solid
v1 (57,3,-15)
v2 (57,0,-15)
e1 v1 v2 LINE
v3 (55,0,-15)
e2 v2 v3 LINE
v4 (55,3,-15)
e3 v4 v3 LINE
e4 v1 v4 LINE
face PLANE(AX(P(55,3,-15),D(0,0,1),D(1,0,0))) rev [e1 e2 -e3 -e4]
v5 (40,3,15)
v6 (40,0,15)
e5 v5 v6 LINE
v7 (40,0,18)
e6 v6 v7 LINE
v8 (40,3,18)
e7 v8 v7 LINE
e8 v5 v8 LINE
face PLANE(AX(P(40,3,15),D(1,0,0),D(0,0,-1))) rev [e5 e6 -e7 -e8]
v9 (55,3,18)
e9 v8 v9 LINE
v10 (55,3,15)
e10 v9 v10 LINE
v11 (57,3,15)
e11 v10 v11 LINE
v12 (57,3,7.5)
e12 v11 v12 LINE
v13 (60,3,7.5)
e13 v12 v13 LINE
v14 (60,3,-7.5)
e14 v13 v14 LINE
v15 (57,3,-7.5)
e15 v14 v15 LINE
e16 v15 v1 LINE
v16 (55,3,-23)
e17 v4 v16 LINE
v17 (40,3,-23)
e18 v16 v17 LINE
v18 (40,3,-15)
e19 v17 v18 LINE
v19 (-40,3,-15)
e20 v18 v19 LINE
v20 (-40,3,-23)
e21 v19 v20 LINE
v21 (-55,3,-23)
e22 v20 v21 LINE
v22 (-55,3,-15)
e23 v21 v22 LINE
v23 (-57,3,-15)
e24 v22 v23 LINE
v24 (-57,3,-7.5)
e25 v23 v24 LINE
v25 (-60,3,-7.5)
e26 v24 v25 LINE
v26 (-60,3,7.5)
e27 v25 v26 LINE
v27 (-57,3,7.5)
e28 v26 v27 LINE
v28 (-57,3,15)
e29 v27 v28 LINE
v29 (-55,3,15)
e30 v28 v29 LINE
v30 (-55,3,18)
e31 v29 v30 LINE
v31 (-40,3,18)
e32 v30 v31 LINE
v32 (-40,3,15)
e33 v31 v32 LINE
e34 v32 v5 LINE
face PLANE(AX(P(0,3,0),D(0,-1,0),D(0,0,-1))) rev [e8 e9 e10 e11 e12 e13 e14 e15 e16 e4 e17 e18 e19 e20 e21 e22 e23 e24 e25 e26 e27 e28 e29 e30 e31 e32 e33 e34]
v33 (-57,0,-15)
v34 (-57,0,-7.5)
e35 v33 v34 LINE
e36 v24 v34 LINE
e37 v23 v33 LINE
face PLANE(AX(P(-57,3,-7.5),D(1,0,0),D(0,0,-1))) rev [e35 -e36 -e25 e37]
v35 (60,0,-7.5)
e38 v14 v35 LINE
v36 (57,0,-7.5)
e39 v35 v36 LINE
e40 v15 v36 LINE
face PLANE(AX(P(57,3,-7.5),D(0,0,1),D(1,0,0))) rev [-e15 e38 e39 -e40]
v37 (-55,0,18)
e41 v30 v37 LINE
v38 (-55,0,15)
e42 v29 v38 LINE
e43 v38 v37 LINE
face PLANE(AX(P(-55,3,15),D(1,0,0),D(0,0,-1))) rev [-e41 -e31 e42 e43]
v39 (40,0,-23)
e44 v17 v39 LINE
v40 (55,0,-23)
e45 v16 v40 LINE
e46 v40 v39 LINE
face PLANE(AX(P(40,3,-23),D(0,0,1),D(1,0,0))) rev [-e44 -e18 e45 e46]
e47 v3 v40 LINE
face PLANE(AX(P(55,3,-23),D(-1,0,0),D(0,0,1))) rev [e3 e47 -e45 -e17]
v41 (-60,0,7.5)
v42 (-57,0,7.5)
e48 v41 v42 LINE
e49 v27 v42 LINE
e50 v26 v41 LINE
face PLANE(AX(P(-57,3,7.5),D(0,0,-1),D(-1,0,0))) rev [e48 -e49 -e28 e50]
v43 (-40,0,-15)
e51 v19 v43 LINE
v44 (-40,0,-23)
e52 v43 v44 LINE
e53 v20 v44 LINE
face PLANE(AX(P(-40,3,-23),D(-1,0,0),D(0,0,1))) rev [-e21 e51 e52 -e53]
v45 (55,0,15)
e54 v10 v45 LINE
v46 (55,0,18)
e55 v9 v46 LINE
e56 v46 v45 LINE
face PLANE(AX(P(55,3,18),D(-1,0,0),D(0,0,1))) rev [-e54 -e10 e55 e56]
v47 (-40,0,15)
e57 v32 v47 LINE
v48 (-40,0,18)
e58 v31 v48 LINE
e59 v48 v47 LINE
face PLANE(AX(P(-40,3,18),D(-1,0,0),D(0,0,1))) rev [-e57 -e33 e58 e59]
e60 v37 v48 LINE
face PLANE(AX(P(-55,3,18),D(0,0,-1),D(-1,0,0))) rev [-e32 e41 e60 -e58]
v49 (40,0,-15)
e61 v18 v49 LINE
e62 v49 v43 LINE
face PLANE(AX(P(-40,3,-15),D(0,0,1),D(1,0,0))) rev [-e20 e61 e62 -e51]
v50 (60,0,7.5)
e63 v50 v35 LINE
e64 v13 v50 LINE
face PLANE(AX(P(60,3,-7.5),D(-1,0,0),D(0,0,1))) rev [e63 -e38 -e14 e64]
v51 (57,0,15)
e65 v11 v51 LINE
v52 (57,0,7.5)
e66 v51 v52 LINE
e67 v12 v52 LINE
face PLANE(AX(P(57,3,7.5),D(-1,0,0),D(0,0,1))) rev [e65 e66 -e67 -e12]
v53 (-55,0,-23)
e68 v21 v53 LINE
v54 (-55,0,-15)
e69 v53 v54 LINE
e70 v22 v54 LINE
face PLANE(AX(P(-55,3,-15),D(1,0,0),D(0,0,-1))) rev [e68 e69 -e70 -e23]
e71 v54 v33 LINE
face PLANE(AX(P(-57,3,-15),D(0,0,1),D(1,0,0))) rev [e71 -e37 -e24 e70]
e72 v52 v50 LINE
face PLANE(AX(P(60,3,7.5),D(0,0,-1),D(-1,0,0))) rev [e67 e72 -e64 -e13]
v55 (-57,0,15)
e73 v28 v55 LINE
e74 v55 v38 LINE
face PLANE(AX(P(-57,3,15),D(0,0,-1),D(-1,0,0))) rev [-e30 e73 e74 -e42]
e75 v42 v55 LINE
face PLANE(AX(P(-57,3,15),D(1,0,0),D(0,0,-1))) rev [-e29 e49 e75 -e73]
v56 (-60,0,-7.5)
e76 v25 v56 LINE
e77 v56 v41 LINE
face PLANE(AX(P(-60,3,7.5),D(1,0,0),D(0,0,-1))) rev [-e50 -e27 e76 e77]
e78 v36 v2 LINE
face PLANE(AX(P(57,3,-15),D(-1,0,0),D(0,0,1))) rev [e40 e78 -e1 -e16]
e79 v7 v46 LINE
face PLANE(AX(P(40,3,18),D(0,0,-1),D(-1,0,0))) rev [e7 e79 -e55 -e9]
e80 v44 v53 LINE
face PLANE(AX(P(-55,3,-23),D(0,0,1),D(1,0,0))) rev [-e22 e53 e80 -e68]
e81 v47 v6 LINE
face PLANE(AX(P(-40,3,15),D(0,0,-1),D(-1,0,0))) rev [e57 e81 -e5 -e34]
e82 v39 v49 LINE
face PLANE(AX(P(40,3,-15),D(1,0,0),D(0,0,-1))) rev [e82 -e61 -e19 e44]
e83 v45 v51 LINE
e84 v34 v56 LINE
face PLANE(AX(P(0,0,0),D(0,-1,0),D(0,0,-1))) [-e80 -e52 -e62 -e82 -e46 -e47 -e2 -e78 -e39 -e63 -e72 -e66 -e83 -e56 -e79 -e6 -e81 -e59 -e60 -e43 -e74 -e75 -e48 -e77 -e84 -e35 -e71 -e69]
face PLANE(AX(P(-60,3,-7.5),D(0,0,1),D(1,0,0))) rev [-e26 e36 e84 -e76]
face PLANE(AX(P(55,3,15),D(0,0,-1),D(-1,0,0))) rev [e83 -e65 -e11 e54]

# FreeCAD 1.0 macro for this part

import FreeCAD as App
import Part
import Sketcher

V = App.Vector


def add_polygon(sketch, points):
    """Adds a closed chain of lines whose ends are joined by coincident constraints."""
    first, n = sketch.GeometryCount, len(points)
    for a, b in zip(points, points[1:] + points[:1]):
        sketch.addGeometry(Part.LineSegment(App.Vector(*a, 0), App.Vector(*b, 0)), False)
    for i in range(n):
        sketch.addConstraint(Sketcher.Constraint("Coincident", first + i, 2, first + (i + 1) % n, 1))

doc = App.newDocument("Part")
body = doc.addObject("PartDesign::Body", "Body")

sketch1 = doc.addObject("Sketcher::SketchObject", "Sketch")
body.addObject(sketch1)
sketch1.AttachmentSupport = (doc.XZ_Plane, [""])
sketch1.MapMode = "FlatFace"
add_polygon(sketch1, [(57, -7.5), (57, -15), (55, -15), (55, -23), (40, -23), (40, -15), (-40, -15), (-40, -23), (-55, -23), (-55, -15), (-57, -15), (-57, -7.5), (-60, -7.5), (-60, 7.5), (-57, 7.5), (-57, 15), (-55, 15), (-55, 18), (-40, 18), (-40, 15), (40, 15), (40, 18), (55, 18), (55, 15), (57, 15), (57, 7.5), (60, 7.5), (60, -7.5)])
sketch1.addConstraint([
    Sketcher.Constraint("Vertical", 0),
    Sketcher.Constraint("Horizontal", 1),
    Sketcher.Constraint("Vertical", 2),
    Sketcher.Constraint("Horizontal", 3),
    Sketcher.Constraint("Vertical", 4),
    Sketcher.Constraint("Horizontal", 5),
    Sketcher.Constraint("Vertical", 6),
    Sketcher.Constraint("Horizontal", 7),
    Sketcher.Constraint("Vertical", 8),
    Sketcher.Constraint("Horizontal", 9),
    Sketcher.Constraint("Vertical", 10),
    Sketcher.Constraint("Horizontal", 11),
    Sketcher.Constraint("Vertical", 12),
    Sketcher.Constraint("Horizontal", 13),
    Sketcher.Constraint("Vertical", 14),
    Sketcher.Constraint("Horizontal", 15),
    Sketcher.Constraint("Vertical", 16),
    Sketcher.Constraint("Horizontal", 17),
    Sketcher.Constraint("Vertical", 18),
    Sketcher.Constraint("Horizontal", 19),
    Sketcher.Constraint("Vertical", 20),
    Sketcher.Constraint("Horizontal", 21),
    Sketcher.Constraint("Vertical", 22),
    Sketcher.Constraint("Horizontal", 23),
    Sketcher.Constraint("Vertical", 24),
    Sketcher.Constraint("Horizontal", 25),
    Sketcher.Constraint("Vertical", 26),
    Sketcher.Constraint("Horizontal", 27),
    Sketcher.Constraint("Symmetric", 0, 2, 14, 2, -1, 1),
    Sketcher.Constraint("Symmetric", 4, 2, 18, 2, -1, 1),
    Sketcher.Constraint("Symmetric", 8, 2, 22, 2, -1, 1),
    Sketcher.Constraint("Symmetric", 10, 2, 24, 2, -1, 1),
    Sketcher.Constraint("Symmetric", 12, 2, 26, 2, -1, 1),
    Sketcher.Constraint("Symmetric", 3, 2, 6, 2, -2),
    Sketcher.Constraint("Symmetric", 1, 2, 8, 2, -2),
    Sketcher.Constraint("Symmetric", 17, 2, 20, 2, -2),
    Sketcher.Constraint("Symmetric", 13, 2, 24, 2, -2),
    Sketcher.Constraint("Horizontal", 1, 2, 4, 2),
    Sketcher.Constraint("Vertical", 8, 2, 15, 2),
    Sketcher.Constraint("Equal", 21, 12),
    Sketcher.Constraint("Equal", 27, 16),
    Sketcher.Constraint("DistanceX", 1, 2, 1, 1, 2.0),
    Sketcher.Constraint("DistanceX", 3, 2, 3, 1, 15.0),
    Sketcher.Constraint("DistanceX", 5, 2, 5, 1, 80.0),
    Sketcher.Constraint("DistanceX", 11, 2, 11, 1, 3.0),
    Sketcher.Constraint("DistanceY", 2, 2, 2, 1, 8.0),
    Sketcher.Constraint("DistanceY", 0, 2, 0, 1, 7.5),
])
pad1 = doc.addObject("PartDesign::Pad", "Pad")
body.addObject(pad1)
pad1.Profile = sketch1
pad1.Length = 3
pad1.Reversed = True

doc.recompute()
